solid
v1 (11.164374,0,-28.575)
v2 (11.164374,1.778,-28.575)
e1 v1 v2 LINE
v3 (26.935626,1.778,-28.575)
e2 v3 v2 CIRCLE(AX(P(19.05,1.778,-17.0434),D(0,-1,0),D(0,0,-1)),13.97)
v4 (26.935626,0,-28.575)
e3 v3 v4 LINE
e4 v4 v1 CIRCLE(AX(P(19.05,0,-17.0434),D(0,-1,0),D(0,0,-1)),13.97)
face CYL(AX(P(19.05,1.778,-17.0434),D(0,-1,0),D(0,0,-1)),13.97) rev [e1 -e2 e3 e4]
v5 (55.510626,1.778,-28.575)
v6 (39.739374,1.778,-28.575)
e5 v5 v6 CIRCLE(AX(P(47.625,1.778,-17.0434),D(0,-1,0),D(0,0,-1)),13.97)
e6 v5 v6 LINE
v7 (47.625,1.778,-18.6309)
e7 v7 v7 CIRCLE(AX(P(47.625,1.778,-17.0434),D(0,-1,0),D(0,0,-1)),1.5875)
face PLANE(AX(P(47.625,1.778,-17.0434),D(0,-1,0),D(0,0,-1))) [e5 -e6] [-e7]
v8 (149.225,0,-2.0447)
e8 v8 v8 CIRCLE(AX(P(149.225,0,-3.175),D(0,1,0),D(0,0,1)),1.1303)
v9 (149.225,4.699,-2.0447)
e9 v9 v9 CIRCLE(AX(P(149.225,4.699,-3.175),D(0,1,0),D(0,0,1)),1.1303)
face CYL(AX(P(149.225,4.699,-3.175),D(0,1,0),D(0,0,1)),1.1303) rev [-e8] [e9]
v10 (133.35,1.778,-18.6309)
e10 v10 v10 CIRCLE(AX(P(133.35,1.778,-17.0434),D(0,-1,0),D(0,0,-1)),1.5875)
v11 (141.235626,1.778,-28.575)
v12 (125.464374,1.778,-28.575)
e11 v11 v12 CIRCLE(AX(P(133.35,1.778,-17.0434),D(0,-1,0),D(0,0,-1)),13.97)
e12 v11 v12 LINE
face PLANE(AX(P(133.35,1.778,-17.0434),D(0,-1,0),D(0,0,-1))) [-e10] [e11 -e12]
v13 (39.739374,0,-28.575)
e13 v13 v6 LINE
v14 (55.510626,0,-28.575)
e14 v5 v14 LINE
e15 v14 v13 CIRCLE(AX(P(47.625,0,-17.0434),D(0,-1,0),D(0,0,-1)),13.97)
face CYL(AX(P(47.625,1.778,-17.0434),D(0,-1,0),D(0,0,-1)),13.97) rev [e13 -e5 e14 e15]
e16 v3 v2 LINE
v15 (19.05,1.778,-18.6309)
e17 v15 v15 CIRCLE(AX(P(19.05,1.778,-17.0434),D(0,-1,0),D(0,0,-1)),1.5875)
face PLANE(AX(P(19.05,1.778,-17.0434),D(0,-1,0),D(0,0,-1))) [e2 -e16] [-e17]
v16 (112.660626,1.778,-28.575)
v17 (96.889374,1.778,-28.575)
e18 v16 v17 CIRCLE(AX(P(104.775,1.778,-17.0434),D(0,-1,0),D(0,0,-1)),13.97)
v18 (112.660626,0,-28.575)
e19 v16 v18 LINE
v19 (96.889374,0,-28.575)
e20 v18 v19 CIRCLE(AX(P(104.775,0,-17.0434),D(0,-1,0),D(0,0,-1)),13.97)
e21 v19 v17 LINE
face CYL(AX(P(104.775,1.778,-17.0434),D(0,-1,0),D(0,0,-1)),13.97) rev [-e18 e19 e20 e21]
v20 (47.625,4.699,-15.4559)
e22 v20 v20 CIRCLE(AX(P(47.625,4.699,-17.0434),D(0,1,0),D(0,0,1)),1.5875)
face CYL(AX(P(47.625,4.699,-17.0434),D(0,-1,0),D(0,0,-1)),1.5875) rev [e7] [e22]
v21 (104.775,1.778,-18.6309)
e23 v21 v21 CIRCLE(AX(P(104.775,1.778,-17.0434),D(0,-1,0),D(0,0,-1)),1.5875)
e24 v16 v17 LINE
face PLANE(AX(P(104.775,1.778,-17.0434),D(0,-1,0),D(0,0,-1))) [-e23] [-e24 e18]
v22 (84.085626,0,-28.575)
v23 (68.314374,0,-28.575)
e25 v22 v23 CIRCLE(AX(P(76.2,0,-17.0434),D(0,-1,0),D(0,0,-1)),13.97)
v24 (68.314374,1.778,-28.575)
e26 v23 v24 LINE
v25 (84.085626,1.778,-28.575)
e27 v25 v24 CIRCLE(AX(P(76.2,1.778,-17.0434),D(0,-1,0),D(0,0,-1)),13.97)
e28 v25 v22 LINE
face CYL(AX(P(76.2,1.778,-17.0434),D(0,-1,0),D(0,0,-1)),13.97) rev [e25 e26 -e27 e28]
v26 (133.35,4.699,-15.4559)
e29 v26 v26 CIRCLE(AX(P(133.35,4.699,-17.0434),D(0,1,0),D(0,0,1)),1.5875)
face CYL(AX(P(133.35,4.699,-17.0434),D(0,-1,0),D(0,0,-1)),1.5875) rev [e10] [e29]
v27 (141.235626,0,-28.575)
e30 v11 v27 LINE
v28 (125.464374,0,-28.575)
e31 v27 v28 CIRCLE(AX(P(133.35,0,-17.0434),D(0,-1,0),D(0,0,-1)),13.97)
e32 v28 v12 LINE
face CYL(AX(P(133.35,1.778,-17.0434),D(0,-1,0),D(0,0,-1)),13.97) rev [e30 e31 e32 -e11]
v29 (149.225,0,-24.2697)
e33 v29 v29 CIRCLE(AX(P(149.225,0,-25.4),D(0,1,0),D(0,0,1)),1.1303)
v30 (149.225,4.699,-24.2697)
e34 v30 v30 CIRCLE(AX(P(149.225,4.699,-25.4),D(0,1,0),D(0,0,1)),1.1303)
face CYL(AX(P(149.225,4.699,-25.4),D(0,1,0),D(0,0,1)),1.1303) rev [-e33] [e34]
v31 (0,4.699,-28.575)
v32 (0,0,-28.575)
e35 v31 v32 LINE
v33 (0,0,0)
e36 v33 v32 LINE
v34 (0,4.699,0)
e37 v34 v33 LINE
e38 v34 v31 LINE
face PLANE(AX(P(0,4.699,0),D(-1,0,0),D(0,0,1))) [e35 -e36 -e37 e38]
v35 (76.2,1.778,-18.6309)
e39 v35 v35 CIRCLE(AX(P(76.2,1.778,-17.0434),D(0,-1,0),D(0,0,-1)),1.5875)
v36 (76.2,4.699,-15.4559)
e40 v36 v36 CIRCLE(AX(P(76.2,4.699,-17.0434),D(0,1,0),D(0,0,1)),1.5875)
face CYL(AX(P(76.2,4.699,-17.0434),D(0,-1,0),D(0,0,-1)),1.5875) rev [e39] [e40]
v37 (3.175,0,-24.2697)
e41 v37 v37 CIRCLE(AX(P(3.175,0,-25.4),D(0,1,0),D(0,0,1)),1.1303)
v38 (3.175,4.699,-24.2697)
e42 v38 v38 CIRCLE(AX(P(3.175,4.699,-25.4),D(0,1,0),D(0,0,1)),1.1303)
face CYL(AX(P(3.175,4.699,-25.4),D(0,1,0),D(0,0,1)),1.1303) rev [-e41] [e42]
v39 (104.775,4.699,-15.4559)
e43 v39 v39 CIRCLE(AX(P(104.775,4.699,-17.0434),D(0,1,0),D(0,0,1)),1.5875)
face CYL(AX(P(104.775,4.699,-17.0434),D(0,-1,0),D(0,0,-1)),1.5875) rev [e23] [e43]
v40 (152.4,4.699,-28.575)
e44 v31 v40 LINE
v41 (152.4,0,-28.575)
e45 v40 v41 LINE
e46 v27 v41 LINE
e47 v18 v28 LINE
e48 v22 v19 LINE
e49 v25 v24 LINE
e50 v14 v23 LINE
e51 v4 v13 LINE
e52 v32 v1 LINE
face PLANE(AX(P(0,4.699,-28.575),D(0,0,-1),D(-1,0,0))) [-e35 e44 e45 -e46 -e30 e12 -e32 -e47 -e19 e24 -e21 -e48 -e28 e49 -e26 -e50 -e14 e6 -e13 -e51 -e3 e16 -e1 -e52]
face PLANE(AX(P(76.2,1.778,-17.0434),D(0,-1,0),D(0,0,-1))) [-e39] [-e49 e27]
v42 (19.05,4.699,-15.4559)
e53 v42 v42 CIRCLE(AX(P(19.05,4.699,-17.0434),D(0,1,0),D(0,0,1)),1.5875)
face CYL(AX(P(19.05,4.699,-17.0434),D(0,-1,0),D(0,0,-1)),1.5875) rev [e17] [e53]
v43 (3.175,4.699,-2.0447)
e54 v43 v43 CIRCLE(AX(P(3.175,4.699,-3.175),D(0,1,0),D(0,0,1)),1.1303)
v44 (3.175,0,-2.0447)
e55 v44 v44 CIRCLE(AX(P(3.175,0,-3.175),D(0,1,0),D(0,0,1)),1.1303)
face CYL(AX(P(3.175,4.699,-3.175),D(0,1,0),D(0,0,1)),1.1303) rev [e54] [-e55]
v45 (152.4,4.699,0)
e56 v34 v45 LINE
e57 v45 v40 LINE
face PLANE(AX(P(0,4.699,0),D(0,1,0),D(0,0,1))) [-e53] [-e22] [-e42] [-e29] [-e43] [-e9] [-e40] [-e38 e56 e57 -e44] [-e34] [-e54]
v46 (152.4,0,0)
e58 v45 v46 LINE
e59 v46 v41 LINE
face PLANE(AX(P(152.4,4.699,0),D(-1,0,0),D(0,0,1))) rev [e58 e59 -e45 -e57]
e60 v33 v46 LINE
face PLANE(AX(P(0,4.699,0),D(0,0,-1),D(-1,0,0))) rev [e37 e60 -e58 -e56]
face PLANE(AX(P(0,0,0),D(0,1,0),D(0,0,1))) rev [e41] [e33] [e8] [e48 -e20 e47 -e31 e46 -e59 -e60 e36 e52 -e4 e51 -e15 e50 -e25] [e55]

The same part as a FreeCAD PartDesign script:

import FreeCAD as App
import Part
import Sketcher

V = App.Vector
Q = App.Units.Quantity


def add_polygon(sketch, points):
    """Adds a closed chain of lines whose ends are joined by coincident constraints."""
    first, n = sketch.GeometryCount, len(points)
    for a, b in zip(points, points[1:] + points[:1]):
        sketch.addGeometry(Part.LineSegment(App.Vector(*a, 0), App.Vector(*b, 0)), False)
    for i in range(n):
        sketch.addConstraint(Sketcher.Constraint("Coincident", first + i, 2, first + (i + 1) % n, 1))

doc = App.newDocument("Part")
params = doc.addObject("Spreadsheet::Sheet", "Params")
for row, (alias, value) in enumerate([
    ("sketch1_width", "6 in"),
    ("sketch1_diameter", "0.125 in"),
    ("sketch1_height", "1.125 in"),
    ("pad1_length", "0.185 in"),
    ("sketch2_diameter", "1.1 in"),
    ("pocket1_length", "0.07 in"),
    ("sketch3_diameter", "0.089 in"),
    ("hole_diameter", "0.089 in"),
], start=1):
    params.set(f"A{row}", alias)
    params.set(f"B{row}", "=" + value)
    params.setAlias(f"B{row}", alias)

body = doc.addObject("PartDesign::Body", "Body")

# Sketch on XZ plane
sketch1 = body.newObject("Sketcher::SketchObject", "Sketch")
sketch1.AttachmentSupport = (doc.getObject("XZ_Plane"), [""])
sketch1.MapMode = "FlatFace"
add_polygon(sketch1, [(0, -28.6), (0, 0), (152.4, 0), (152.4, -28.6)])  # lines 0-3
sketch1.addGeometry(Part.Circle(V(19.1, -17, 0), V(0, 0, 1), 1.6), False)  # 4
sketch1.addGeometry(Part.Circle(V(47.6, -17, 0), V(0, 0, 1), 1.6), False)  # 5
sketch1.addGeometry(Part.Circle(V(76.2, -17, 0), V(0, 0, 1), 1.6), False)  # 6
sketch1.addGeometry(Part.Circle(V(104.8, -17, 0), V(0, 0, 1), 1.6), False)  # 7
sketch1.addGeometry(Part.Circle(V(133.3, -17, 0), V(0, 0, 1), 1.6), False)  # 8
sketch1.addConstraint([
    Sketcher.Constraint("Vertical", 0),
    Sketcher.Constraint("Horizontal", 1),
    Sketcher.Constraint("Vertical", 2),
    Sketcher.Constraint("Horizontal", 3),
    Sketcher.Constraint("Coincident", 0, 2, -1, 1),
    Sketcher.Constraint("Equal", 4, 5),
    Sketcher.Constraint("Equal", 5, 6),
    Sketcher.Constraint("Equal", 6, 7),
    Sketcher.Constraint("Equal", 7, 8),
    Sketcher.Constraint("Horizontal", 4, 3, 5, 3),
    Sketcher.Constraint("Horizontal", 5, 3, 6, 3),
    Sketcher.Constraint("Horizontal", 6, 3, 7, 3),
    Sketcher.Constraint("Horizontal", 7, 3, 8, 3),
    Sketcher.Constraint("DistanceX", 1, 1, 1, 2, Q("6 in")),
    Sketcher.Constraint("Diameter", 4, Q("0.125 in")),
    Sketcher.Constraint("DistanceX", -1, 1, 6, 3, Q("3 in")),
    Sketcher.Constraint("DistanceX", 4, 3, 8, 3, Q("4.5 in")),
    Sketcher.Constraint("DistanceY", 0, 1, 0, 2, Q("1.125 in")),
    Sketcher.Constraint("DistanceX", -1, 1, 4, 3, Q("0.75 in")),
    Sketcher.Constraint("DistanceX", 5, 3, 7, 3, Q("2.25 in")),
    Sketcher.Constraint("DistanceY", 4, 3, -1, 1, Q("0.671 in")),
    Sketcher.Constraint("DistanceX", -1, 1, 5, 3, Q("1.875 in")),
])
sketch1.setExpression("Constraints[17]", "Params.sketch1_width")
sketch1.setExpression("Constraints[18]", "Params.sketch1_diameter")
sketch1.setExpression("Constraints[21]", "Params.sketch1_height")
pad1 = body.newObject("PartDesign::Pad", "Pad")
pad1.Profile = sketch1
pad1.setExpression("Length", "Params.pad1_length")
pad1.Reversed = True

# Sketch on XZ plane
sketch2 = body.newObject("Sketcher::SketchObject", "Sketch001")
sketch2.AttachmentSupport = (doc.getObject("XZ_Plane"), [""])
sketch2.MapMode = "FlatFace"
sketch2.addGeometry([
    Part.Circle(V(19, -17, 0), V(0, 0, 1), 14),  # 0
    Part.Circle(V(48, -17, 0), V(0, 0, 1), 14),  # 1
    Part.Circle(V(76, -17, 0), V(0, 0, 1), 14),  # 2
    Part.Circle(V(105, -17, 0), V(0, 0, 1), 14),  # 3
    Part.Circle(V(133, -17, 0), V(0, 0, 1), 14),  # 4
], False)
sketch2.addConstraint([
    Sketcher.Constraint("Equal", 0, 1),
    Sketcher.Constraint("Equal", 1, 2),
    Sketcher.Constraint("Equal", 2, 3),
    Sketcher.Constraint("Equal", 3, 4),
    Sketcher.Constraint("Horizontal", 0, 3, 1, 3),
    Sketcher.Constraint("Horizontal", 1, 3, 2, 3),
    Sketcher.Constraint("Horizontal", 2, 3, 3, 3),
    Sketcher.Constraint("Horizontal", 3, 3, 4, 3),
    Sketcher.Constraint("Diameter", 0, Q("1.1 in")),
    Sketcher.Constraint("DistanceX", -1, 1, 2, 3, Q("3 in")),
    Sketcher.Constraint("DistanceX", 0, 3, 4, 3, Q("4.5 in")),
    Sketcher.Constraint("DistanceX", -1, 1, 0, 3, Q("0.75 in")),
    Sketcher.Constraint("DistanceX", 1, 3, 3, 3, Q("2.25 in")),
    Sketcher.Constraint("DistanceY", 0, 3, -1, 1, Q("0.671 in")),
    Sketcher.Constraint("DistanceX", -1, 1, 1, 3, Q("1.875 in")),
])
sketch2.setExpression("Constraints[8]", "Params.sketch2_diameter")
pocket1 = body.newObject("PartDesign::Pocket", "Pocket")
pocket1.Profile = sketch2
pocket1.setExpression("Length", "Params.pocket1_length")

# Sketch on XZ plane
sketch3 = body.newObject("Sketcher::SketchObject", "Sketch002")
sketch3.AttachmentSupport = (doc.getObject("XZ_Plane"), [""])
sketch3.MapMode = "FlatFace"
sketch3.AttachmentOffset = App.Placement(V(0, 0, -0.185 * 25.4), App.Rotation())
sketch3.addGeometry([
    Part.Circle(V(3.2, -25.4, 0), V(0, 0, 1), 1.1),
    Part.Circle(V(3.2, -3.2, 0), V(0, 0, 1), 1.1),
    Part.Circle(V(149.2, -3.2, 0), V(0, 0, 1), 1.1),
    Part.Circle(V(149.2, -25.4, 0), V(0, 0, 1), 1.1),
], False)
sketch3.addConstraint([
    Sketcher.Constraint("Equal", 0, 1),
    Sketcher.Constraint("Equal", 1, 2),
    Sketcher.Constraint("Equal", 2, 3),
    Sketcher.Constraint("Horizontal", 1, 3, 2, 3),
    Sketcher.Constraint("Horizontal", 0, 3, 3, 3),
    Sketcher.Constraint("Vertical", 0, 3, 1, 3),
    Sketcher.Constraint("Vertical", 2, 3, 3, 3),
    Sketcher.Constraint("Diameter", 0, Q("0.089 in")),
    Sketcher.Constraint("DistanceY", 0, 3, -1, 1, Q("1 in")),
    Sketcher.Constraint("DistanceX", 1, 3, 2, 3, Q("5.75 in")),
    Sketcher.Constraint("DistanceX", -1, 1, 0, 3, Q("0.125 in")),
    Sketcher.Constraint("DistanceY", 1, 3, -1, 1, Q("0.125 in")),
])
sketch3.setExpression("Constraints[7]", "Params.sketch3_diameter")
doc.recompute()
hole = body.newObject("PartDesign::Hole", "Hole")
hole.Profile = sketch3
hole.ThreadType = "None"
hole.setExpression("Diameter", "Params.hole_diameter")
hole.DepthType = "ThroughAll"
hole.Reversed = True

doc.recompute()
